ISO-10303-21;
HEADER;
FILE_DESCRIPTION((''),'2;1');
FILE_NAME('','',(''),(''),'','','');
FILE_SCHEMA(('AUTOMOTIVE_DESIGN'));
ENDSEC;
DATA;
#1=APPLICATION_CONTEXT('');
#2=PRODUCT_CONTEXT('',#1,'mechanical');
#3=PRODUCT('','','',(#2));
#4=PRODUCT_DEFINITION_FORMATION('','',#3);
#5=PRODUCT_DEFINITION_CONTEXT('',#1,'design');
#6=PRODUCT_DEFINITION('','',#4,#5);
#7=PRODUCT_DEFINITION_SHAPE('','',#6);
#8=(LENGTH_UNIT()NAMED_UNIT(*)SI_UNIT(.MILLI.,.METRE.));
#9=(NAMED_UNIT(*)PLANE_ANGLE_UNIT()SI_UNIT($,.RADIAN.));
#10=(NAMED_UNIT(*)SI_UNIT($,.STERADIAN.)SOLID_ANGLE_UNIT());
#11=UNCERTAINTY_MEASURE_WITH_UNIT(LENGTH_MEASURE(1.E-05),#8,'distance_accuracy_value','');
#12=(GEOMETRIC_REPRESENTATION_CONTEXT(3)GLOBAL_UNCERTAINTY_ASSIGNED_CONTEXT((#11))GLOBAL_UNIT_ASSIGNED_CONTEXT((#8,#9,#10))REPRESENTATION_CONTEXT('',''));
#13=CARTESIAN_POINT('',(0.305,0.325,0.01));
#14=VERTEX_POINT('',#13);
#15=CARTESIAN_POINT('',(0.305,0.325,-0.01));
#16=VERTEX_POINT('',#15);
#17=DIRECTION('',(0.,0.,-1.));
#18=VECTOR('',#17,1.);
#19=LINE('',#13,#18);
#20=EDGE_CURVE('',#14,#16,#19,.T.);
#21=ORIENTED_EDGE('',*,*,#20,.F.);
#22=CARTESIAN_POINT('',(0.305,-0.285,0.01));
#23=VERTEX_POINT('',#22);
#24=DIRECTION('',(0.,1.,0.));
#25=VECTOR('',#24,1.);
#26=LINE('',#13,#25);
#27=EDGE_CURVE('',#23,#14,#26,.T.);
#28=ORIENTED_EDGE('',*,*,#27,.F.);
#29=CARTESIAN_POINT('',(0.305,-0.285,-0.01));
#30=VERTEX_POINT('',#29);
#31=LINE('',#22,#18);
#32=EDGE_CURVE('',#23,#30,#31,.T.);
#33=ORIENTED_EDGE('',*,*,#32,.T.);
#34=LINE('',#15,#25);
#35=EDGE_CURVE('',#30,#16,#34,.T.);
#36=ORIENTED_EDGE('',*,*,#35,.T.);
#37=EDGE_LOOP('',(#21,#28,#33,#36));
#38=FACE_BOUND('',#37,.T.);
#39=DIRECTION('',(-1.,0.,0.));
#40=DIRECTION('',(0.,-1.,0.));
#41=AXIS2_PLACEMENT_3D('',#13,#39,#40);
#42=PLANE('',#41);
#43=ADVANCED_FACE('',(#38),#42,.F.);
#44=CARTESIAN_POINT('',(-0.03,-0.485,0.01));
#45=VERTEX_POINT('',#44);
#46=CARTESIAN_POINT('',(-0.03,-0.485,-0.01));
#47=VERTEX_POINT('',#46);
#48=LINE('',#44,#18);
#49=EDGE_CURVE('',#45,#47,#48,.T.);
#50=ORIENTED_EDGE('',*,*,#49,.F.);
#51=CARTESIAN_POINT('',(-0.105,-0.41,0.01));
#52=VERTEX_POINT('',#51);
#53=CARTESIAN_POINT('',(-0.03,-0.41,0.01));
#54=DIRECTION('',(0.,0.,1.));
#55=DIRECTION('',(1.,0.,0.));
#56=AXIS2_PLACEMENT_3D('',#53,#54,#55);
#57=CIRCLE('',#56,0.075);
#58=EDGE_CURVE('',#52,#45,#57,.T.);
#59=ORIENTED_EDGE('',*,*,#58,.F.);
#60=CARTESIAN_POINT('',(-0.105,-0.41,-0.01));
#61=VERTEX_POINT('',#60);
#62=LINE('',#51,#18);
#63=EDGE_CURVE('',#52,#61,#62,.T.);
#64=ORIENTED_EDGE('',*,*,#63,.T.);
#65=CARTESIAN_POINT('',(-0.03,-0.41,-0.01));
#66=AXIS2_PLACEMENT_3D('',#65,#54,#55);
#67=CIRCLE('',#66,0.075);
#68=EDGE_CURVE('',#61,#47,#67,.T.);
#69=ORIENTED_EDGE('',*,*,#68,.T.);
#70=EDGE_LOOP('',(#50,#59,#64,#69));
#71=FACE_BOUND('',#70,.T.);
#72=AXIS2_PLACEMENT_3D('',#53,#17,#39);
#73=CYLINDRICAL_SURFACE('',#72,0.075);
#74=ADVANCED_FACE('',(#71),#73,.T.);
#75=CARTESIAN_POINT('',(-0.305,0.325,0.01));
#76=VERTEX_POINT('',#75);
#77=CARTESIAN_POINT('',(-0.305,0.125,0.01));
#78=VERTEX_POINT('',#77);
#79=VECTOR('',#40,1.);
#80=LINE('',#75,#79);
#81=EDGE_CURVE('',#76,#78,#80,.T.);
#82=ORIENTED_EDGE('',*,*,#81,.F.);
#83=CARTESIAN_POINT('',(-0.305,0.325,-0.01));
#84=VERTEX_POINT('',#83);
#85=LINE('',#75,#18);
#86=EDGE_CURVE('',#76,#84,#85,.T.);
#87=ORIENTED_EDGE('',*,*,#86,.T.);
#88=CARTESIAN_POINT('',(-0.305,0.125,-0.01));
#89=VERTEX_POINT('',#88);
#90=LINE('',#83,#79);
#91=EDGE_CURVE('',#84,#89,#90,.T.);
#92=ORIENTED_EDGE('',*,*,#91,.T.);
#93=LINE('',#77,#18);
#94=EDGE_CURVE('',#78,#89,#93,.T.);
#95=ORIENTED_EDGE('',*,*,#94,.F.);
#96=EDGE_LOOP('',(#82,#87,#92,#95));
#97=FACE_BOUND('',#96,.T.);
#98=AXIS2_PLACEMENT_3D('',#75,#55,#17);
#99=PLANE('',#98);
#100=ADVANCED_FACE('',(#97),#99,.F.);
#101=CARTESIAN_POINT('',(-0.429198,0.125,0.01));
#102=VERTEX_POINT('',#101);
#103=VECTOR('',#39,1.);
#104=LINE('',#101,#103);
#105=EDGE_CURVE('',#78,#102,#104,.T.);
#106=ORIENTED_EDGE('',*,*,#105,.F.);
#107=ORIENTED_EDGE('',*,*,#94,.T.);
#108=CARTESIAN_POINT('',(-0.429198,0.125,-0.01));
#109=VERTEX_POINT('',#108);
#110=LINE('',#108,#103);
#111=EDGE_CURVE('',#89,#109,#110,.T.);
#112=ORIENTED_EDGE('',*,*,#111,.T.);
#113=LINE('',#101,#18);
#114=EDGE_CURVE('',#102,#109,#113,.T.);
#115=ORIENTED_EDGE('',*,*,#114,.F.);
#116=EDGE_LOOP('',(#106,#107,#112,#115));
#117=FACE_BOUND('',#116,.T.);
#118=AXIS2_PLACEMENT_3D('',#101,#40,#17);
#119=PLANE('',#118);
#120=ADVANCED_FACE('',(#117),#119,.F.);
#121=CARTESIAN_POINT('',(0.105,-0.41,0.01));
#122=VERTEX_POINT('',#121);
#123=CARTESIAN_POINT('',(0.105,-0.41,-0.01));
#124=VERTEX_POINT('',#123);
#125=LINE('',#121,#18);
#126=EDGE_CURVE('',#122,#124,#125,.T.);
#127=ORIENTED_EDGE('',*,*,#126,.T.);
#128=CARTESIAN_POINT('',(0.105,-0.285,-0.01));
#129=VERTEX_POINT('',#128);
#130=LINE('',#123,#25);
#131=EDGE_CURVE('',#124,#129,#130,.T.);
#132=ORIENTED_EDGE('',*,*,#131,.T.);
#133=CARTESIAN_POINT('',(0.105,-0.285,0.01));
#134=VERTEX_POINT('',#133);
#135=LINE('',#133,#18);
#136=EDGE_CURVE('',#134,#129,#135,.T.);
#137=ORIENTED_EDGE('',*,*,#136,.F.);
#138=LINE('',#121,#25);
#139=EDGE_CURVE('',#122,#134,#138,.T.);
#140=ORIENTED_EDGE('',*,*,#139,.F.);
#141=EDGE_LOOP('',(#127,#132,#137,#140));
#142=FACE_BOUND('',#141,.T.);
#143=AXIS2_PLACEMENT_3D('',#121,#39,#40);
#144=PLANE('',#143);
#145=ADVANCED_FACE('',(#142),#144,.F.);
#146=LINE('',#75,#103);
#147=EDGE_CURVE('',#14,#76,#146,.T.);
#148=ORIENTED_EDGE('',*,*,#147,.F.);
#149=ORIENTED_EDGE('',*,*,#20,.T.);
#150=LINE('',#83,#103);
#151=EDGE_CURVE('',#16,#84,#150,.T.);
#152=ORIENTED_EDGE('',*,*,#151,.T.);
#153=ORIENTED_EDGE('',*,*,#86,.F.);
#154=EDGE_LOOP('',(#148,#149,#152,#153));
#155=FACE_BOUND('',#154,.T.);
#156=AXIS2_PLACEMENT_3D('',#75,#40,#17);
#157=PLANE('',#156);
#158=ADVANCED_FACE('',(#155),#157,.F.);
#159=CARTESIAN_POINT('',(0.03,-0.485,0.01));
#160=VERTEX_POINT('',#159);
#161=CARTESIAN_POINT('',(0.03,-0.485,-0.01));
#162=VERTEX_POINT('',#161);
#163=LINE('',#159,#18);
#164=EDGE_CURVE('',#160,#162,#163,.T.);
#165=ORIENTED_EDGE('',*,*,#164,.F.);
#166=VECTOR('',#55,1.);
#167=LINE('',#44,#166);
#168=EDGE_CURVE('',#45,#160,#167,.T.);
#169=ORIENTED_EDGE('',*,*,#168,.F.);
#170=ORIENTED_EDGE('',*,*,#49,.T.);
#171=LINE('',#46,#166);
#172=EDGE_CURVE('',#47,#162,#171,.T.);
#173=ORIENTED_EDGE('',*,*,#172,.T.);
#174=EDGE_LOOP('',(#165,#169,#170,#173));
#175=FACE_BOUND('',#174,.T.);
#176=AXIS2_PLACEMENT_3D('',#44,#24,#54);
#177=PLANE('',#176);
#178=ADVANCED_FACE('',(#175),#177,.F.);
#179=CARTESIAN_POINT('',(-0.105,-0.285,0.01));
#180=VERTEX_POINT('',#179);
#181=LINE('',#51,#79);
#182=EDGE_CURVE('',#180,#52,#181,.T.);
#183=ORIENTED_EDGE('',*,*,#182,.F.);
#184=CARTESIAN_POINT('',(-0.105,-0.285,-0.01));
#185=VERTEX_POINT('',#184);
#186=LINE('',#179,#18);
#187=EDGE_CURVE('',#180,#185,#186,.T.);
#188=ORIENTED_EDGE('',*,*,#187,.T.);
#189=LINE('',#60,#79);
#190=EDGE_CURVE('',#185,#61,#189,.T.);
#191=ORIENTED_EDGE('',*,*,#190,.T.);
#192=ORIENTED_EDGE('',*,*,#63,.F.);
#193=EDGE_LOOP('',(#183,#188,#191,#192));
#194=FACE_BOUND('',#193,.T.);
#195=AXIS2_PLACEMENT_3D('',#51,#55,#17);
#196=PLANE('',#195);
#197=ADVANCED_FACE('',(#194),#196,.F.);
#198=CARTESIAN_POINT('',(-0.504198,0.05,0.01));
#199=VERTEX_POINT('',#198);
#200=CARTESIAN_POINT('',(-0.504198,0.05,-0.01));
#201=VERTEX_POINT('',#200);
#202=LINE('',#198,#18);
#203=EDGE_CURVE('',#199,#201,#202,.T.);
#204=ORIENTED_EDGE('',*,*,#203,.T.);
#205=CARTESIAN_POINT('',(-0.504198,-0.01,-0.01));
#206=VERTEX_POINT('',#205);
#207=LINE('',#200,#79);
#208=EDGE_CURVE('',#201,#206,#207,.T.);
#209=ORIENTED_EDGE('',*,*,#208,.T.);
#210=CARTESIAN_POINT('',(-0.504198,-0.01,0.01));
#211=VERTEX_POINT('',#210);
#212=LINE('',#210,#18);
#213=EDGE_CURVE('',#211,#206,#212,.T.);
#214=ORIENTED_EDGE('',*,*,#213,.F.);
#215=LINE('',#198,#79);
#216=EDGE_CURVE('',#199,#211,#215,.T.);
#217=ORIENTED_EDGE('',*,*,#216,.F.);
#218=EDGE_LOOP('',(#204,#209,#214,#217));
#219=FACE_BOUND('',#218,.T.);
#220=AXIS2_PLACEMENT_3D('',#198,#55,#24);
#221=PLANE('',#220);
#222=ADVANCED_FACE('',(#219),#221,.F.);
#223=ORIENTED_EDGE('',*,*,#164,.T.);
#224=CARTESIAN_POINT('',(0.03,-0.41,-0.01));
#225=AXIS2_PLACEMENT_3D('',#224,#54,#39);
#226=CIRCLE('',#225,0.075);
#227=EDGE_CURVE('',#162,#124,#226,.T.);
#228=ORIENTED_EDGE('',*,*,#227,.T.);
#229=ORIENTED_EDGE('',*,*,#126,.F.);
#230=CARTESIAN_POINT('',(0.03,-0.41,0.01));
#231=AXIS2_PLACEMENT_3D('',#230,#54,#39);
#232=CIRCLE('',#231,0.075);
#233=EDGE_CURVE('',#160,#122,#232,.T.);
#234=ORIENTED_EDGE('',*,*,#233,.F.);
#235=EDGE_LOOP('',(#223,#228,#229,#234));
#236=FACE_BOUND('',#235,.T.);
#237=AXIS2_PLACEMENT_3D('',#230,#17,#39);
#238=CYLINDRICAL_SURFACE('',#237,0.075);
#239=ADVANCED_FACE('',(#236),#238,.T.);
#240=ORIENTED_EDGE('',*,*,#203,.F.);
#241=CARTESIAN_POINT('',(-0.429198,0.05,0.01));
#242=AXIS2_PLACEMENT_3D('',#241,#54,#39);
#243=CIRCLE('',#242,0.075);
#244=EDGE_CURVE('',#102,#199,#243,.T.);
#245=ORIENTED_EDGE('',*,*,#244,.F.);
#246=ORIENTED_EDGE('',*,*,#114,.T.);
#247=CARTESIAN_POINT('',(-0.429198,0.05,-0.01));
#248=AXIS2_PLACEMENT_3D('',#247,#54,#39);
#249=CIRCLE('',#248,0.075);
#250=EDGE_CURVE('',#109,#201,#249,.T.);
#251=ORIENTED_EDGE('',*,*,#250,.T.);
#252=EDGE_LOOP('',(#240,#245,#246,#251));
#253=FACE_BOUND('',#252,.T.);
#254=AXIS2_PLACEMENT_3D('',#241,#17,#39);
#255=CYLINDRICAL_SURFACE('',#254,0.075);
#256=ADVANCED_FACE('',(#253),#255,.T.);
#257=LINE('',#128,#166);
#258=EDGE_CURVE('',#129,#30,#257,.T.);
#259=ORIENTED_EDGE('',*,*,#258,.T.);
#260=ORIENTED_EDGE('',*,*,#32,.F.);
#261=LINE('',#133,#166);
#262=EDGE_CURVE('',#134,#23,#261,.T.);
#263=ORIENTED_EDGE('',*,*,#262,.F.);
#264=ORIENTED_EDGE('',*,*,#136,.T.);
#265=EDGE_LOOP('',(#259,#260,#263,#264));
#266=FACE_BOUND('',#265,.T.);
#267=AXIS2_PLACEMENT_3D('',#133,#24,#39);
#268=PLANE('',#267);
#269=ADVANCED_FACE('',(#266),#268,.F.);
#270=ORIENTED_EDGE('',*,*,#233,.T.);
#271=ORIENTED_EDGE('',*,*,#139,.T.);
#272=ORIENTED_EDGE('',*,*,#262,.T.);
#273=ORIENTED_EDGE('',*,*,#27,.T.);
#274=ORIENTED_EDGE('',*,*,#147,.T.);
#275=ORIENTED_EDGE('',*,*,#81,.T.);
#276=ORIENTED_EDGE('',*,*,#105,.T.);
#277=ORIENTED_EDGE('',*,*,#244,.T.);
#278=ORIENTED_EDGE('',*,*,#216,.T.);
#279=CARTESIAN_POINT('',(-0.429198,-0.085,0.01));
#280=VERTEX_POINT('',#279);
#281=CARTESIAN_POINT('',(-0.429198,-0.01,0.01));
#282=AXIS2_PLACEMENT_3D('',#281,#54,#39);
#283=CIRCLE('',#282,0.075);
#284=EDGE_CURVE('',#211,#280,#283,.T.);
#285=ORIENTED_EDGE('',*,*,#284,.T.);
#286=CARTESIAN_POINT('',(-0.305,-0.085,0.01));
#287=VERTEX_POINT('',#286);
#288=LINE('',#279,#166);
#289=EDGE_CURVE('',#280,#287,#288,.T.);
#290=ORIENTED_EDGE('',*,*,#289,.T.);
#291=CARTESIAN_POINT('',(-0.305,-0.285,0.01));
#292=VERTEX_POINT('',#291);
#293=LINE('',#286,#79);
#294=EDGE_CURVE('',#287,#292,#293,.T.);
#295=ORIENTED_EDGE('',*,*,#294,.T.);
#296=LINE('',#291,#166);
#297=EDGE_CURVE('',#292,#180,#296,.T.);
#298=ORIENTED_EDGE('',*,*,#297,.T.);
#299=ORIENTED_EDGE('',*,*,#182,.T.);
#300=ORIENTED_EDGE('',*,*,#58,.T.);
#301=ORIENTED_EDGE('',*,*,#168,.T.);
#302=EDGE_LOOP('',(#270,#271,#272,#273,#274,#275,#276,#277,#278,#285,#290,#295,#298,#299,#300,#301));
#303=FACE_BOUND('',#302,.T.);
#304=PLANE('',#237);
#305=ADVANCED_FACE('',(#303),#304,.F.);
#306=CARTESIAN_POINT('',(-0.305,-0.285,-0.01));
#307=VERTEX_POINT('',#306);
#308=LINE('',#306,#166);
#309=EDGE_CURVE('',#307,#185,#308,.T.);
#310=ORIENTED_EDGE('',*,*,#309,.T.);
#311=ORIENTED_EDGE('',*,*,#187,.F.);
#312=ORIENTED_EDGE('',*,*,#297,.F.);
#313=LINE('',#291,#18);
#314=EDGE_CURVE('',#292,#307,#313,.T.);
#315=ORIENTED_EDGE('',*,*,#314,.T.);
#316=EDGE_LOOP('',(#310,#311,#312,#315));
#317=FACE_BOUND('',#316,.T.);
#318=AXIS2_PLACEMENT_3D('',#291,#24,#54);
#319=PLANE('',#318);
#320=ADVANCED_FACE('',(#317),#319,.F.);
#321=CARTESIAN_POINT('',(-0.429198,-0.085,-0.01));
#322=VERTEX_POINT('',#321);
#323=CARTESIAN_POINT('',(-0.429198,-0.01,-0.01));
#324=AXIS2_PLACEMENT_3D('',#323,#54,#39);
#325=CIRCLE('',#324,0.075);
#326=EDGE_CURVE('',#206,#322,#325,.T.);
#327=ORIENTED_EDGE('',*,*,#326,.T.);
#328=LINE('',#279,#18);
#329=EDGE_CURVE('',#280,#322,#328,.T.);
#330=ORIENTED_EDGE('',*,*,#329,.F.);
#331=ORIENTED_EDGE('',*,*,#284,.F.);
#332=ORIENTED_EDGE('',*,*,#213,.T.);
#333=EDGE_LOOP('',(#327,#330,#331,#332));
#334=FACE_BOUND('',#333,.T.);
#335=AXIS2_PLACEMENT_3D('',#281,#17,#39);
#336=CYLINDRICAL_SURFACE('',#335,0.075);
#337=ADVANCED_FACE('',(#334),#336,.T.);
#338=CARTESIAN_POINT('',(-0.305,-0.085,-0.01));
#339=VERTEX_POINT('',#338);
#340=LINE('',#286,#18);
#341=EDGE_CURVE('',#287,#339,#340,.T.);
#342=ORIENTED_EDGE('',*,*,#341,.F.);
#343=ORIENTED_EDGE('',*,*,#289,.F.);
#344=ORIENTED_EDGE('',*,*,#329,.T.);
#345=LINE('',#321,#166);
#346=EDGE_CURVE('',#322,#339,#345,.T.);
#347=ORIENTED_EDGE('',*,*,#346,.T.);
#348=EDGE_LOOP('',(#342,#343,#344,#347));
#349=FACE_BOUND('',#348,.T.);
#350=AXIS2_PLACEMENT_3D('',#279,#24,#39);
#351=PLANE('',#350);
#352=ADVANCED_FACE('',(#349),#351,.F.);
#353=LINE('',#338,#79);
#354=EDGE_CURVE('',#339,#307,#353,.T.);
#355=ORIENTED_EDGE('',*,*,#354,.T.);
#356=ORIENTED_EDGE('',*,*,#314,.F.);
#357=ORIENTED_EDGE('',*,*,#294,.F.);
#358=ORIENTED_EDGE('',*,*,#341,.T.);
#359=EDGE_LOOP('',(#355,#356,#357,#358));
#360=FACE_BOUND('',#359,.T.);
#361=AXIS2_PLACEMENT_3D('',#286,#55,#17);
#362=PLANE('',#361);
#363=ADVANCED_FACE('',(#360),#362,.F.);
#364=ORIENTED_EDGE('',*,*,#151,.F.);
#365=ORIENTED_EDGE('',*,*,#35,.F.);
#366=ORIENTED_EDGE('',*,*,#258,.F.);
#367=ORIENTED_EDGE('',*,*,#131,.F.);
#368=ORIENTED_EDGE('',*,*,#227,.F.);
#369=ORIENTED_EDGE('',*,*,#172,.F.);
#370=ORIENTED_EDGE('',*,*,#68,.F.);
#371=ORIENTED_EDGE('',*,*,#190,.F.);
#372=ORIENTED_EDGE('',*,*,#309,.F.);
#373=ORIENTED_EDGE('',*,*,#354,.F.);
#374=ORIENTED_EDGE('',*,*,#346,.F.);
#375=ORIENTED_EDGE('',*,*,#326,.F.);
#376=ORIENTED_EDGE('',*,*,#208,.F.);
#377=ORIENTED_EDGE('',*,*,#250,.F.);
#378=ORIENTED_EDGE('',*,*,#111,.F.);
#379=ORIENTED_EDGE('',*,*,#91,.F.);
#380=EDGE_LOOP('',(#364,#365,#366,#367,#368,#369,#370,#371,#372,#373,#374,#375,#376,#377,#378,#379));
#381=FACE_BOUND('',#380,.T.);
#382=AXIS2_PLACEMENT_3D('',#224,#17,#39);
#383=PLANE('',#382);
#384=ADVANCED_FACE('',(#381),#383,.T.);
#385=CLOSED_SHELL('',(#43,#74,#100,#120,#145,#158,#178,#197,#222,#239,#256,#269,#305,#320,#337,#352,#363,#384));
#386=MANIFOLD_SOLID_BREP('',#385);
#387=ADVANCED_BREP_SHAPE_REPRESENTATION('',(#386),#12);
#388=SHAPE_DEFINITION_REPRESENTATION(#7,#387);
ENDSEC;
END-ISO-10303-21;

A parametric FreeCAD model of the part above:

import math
import FreeCAD as App
import Part
import Sketcher

doc = App.newDocument("Part")
body = doc.addObject("PartDesign::Body", "Body")

sketch1 = body.newObject("Sketcher::SketchObject", "Sketch")
sketch1.AttachmentSupport = (doc.getObject("XY_Plane"), [""])
sketch1.MapMode = "FlatFace"
sketch1.addGeometry([
    Part.LineSegment(App.Vector(-0.3, 0.33, 0), App.Vector(-0.3, 0.12, 0)),
    Part.LineSegment(App.Vector(-0.3, 0.12, 0), App.Vector(-0.43, 0.12, 0)),
    Part.ArcOfCircle(Part.Circle(App.Vector(-0.43, 0.05, 0), App.Vector(0, 0, 1), 0.07), math.radians(90), math.radians(180)),
    Part.LineSegment(App.Vector(-0.5, 0.05, 0), App.Vector(-0.5, -0.01, 0)),
    Part.ArcOfCircle(Part.Circle(App.Vector(-0.43, -0.01, 0), App.Vector(0, 0, 1), 0.07), math.radians(180), math.radians(270)),
    Part.LineSegment(App.Vector(-0.43, -0.09, 0), App.Vector(-0.3, -0.09, 0)),
    Part.LineSegment(App.Vector(-0.3, -0.09, 0), App.Vector(-0.3, -0.28, 0)),
    Part.LineSegment(App.Vector(-0.3, -0.28, 0), App.Vector(-0.1, -0.28, 0)),
    Part.LineSegment(App.Vector(-0.1, -0.28, 0), App.Vector(-0.1, -0.41, 0)),
    Part.ArcOfCircle(Part.Circle(App.Vector(-0.03, -0.41, 0), App.Vector(0, 0, 1), 0.07), math.radians(180), math.radians(270)),
    Part.LineSegment(App.Vector(-0.03, -0.48, 0), App.Vector(0.03, -0.48, 0)),
    Part.ArcOfCircle(Part.Circle(App.Vector(0.03, -0.41, 0), App.Vector(0, 0, 1), 0.07), math.radians(-90), math.radians(0)),
    Part.LineSegment(App.Vector(0.1, -0.41, 0), App.Vector(0.1, -0.28, 0)),
    Part.LineSegment(App.Vector(0.1, -0.28, 0), App.Vector(0.3, -0.28, 0)),
    Part.LineSegment(App.Vector(0.3, -0.28, 0), App.Vector(0.3, 0.33, 0)),
    Part.LineSegment(App.Vector(0.3, 0.33, 0), App.Vector(-0.3, 0.33, 0)),
], False)
sketch1.addConstraint([
    Sketcher.Constraint("Coincident", 0, 2, 1, 1),
    Sketcher.Constraint("Tangent", 1, 2, 2, 1),
    Sketcher.Constraint("Tangent", 2, 2, 3, 1),
    Sketcher.Constraint("Tangent", 3, 2, 4, 1),
    Sketcher.Constraint("Tangent", 4, 2, 5, 1),
    Sketcher.Constraint("Coincident", 5, 2, 6, 1),
    Sketcher.Constraint("Coincident", 6, 2, 7, 1),
    Sketcher.Constraint("Coincident", 7, 2, 8, 1),
    Sketcher.Constraint("Tangent", 8, 2, 9, 1),
    Sketcher.Constraint("Tangent", 9, 2, 10, 1),
    Sketcher.Constraint("Tangent", 10, 2, 11, 1),
    Sketcher.Constraint("Tangent", 11, 2, 12, 1),
    Sketcher.Constraint("Coincident", 12, 2, 13, 1),
    Sketcher.Constraint("Coincident", 13, 2, 14, 1),
    Sketcher.Constraint("Coincident", 14, 2, 15, 1),
    Sketcher.Constraint("Coincident", 15, 2, 0, 1),
    Sketcher.Constraint("Vertical", 0),
    Sketcher.Constraint("Horizontal", 1),
    Sketcher.Constraint("Vertical", 3),
    Sketcher.Constraint("Horizontal", 5),
    Sketcher.Constraint("Vertical", 6),
    Sketcher.Constraint("Horizontal", 7),
    Sketcher.Constraint("Vertical", 8),
    Sketcher.Constraint("Horizontal", 10),
    Sketcher.Constraint("Vertical", 12),
    Sketcher.Constraint("Horizontal", 13),
    Sketcher.Constraint("Vertical", 14),
    Sketcher.Constraint("Horizontal", 15),
    Sketcher.Constraint("Equal", 2, 4),
    Sketcher.Constraint("Equal", 4, 9),
    Sketcher.Constraint("Equal", 9, 11),
    Sketcher.Constraint("Symmetric", 7, 2, 12, 2, -2),
    Sketcher.Constraint("Vertical", 0, 2, 5, 2),
    Sketcher.Constraint("Equal", 7, 13),
    Sketcher.Constraint("Equal", 13, 0),
    Sketcher.Constraint("Equal", 10, 3),
    Sketcher.Constraint("Equal", 0, 6),
    Sketcher.Constraint("DistanceX", 7, 1, 7, 2, 0.2),
    Sketcher.Constraint("Radius", 2, 0.075),
    Sketcher.Constraint("DistanceX", 10, 1, 10, 2, 0.06),
    Sketcher.Constraint("DistanceY", 9, 3, 4, 3, 0.4),
    Sketcher.Constraint("DistanceY", -1, 1, 2, 3, 0.05),
    Sketcher.Constraint("DistanceX", 1, 2, 1, 1, 0.124198),
])
pad1 = body.newObject("PartDesign::Pad", "Pad")
pad1.Profile = sketch1
pad1.Length = 0.02
pad1.Midplane = True

doc.recompute()
